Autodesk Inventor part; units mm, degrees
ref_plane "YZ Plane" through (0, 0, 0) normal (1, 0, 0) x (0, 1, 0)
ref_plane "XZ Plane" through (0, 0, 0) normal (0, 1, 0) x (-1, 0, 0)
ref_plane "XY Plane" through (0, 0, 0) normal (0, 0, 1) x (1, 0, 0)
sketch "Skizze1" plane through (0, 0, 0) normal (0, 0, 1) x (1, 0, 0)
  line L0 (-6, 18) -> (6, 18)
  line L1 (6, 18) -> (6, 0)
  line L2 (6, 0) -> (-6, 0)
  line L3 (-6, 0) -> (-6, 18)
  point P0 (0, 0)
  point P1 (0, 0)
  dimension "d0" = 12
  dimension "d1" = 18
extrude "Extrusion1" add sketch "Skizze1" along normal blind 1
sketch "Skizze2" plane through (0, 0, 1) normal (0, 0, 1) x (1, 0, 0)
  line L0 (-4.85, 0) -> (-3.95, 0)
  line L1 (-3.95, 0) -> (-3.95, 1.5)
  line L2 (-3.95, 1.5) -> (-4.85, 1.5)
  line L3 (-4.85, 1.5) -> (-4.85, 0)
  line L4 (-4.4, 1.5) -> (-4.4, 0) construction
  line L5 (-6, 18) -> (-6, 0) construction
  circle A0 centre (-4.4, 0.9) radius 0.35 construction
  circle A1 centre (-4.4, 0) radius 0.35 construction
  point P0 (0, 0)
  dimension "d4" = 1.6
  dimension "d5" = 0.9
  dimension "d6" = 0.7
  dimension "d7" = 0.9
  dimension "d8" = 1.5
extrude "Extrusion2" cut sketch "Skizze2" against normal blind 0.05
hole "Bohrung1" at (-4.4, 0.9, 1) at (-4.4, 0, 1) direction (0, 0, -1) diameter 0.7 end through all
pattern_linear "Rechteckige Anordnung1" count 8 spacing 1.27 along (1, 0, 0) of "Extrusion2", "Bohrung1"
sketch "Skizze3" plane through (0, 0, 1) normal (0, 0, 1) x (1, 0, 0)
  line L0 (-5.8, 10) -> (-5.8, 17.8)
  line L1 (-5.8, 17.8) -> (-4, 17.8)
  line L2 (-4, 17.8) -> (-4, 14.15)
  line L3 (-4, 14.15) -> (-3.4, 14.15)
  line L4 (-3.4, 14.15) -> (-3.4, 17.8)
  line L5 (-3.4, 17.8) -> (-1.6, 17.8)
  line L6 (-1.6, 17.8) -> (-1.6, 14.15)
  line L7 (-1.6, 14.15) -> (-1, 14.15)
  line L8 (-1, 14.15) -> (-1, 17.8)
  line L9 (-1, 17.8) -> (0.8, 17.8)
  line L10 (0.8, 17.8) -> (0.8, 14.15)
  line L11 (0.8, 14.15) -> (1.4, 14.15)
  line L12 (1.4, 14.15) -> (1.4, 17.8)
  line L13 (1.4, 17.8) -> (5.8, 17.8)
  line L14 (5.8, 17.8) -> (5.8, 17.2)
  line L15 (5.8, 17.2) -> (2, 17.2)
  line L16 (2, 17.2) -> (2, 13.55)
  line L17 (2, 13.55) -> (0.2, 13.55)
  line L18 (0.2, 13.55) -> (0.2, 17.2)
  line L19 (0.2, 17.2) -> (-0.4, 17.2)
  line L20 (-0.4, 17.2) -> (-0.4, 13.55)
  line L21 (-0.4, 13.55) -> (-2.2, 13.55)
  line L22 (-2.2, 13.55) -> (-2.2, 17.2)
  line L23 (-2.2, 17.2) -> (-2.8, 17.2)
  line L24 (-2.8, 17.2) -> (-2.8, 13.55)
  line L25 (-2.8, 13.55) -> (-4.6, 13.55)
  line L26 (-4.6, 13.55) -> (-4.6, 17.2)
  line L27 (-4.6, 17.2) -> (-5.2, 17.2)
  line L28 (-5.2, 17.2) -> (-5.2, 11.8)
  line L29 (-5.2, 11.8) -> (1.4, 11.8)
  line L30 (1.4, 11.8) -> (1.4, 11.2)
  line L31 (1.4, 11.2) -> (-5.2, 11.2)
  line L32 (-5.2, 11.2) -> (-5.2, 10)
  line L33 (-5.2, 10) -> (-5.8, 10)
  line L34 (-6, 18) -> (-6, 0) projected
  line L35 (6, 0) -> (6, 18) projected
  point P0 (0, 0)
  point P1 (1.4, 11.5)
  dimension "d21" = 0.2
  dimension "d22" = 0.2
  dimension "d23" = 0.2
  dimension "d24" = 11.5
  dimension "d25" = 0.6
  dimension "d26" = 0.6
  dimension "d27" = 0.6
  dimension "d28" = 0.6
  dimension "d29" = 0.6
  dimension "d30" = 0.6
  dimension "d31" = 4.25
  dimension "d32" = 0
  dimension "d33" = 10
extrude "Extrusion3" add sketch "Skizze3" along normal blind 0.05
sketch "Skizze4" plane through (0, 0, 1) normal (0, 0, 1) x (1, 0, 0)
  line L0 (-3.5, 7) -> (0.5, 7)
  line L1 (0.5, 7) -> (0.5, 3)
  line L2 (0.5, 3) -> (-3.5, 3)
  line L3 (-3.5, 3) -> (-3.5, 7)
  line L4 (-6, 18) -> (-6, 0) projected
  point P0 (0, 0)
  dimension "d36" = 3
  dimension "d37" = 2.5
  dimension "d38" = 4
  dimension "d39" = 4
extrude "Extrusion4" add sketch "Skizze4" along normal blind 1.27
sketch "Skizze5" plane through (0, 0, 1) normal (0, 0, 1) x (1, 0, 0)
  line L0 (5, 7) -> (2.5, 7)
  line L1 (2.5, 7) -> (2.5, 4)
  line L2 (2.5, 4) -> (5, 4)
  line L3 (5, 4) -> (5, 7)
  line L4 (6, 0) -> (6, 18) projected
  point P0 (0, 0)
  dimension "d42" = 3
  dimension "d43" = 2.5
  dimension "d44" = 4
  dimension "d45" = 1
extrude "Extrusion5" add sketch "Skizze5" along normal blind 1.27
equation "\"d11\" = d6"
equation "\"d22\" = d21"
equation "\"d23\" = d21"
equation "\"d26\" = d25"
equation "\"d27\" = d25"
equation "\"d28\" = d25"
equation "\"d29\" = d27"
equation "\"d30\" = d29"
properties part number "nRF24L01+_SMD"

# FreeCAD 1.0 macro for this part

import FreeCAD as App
import Part
import Sketcher
Q = App.Units.Quantity


def add_polygon(sketch, points):
    """Adds a closed chain of lines whose ends are joined by coincident constraints."""
    first, n = sketch.GeometryCount, len(points)
    for a, b in zip(points, points[1:] + points[:1]):
        sketch.addGeometry(Part.LineSegment(App.Vector(*a, 0), App.Vector(*b, 0)), False)
    for i in range(n):
        sketch.addConstraint(Sketcher.Constraint("Coincident", first + i, 2, first + (i + 1) % n, 1))

doc = App.newDocument("Part")
body = doc.addObject("PartDesign::Body", "Body")

sketch1 = body.newObject("Sketcher::SketchObject", "Sketch")
sketch1.AttachmentSupport = (doc.getObject("XY_Plane"), [""])
sketch1.MapMode = "FlatFace"
add_polygon(sketch1, [(6, 18), (-6, 18), (-6, 0), (6, 0)])
sketch1.addConstraint([
    Sketcher.Constraint("Horizontal", 0),
    Sketcher.Constraint("Vertical", 1),
    Sketcher.Constraint("Horizontal", 2),
    Sketcher.Constraint("Vertical", 3),
    Sketcher.Constraint("Symmetric", 1, 2, 2, 2, -1, 1),
    Sketcher.Constraint("DistanceX", 0, 2, 0, 1, Q("12 mm")),
    Sketcher.Constraint("DistanceY", 1, 2, 1, 1, Q("18 mm")),
])
pad1 = body.newObject("PartDesign::Pad", "Pad")
pad1.Profile = sketch1
pad1.Length = 1

sketch2 = body.newObject("Sketcher::SketchObject", "Sketch001")
sketch2.AttachmentSupport = (doc.getObject("XY_Plane"), [""])
sketch2.MapMode = "FlatFace"
sketch2.AttachmentOffset = App.Placement(App.Vector(0, 0, 1), App.Rotation())
add_polygon(sketch2, [(-4.8, 1.5), (-4.8, 0), (-4, 0), (-4, 1.5)])
sketch2.addConstraint([
    Sketcher.Constraint("Vertical", 0),
    Sketcher.Constraint("Horizontal", 1),
    Sketcher.Constraint("Vertical", 2),
    Sketcher.Constraint("Horizontal", 3),
    Sketcher.Constraint("PointOnObject", 0, 2, -1),
    Sketcher.Constraint("DistanceX", 1, 1, 1, 2, Q("0.9 mm")),
    Sketcher.Constraint("DistanceY", 0, 2, 0, 1, Q("1.5 mm")),
    Sketcher.Constraint("DistanceX", 0, 2, -1, 1, Q("4.85 mm")),
])
pocket1 = body.newObject("PartDesign::Pocket", "Pocket")
pocket1.Profile = sketch2
pocket1.Length = 0.05

sketch3 = body.newObject("Sketcher::SketchObject", "Sketch002")
sketch3.AttachmentSupport = (doc.getObject("XY_Plane"), [""])
sketch3.MapMode = "FlatFace"
sketch3.AttachmentOffset = App.Placement(App.Vector(0, 0, 1), App.Rotation())
sketch3.addGeometry([
    Part.Circle(App.Vector(-4.4, 0.9, 0), App.Vector(0, 0, 1), 0.35),
    Part.Circle(App.Vector(-4.4, 0, 0), App.Vector(0, 0, 1), 0.35),
], False)
sketch3.addConstraint([
    Sketcher.Constraint("Equal", 0, 1),
    Sketcher.Constraint("PointOnObject", 1, 3, -1),
    Sketcher.Constraint("Vertical", 0, 3, 1, 3),
    Sketcher.Constraint("Diameter", 0, Q("0.7 mm")),
    Sketcher.Constraint("DistanceX", 0, 3, -1, 1, Q("4.4 mm")),
    Sketcher.Constraint("DistanceY", -1, 1, 0, 3, Q("0.9 mm")),
])
doc.recompute()
hole = body.newObject("PartDesign::Hole", "Hole")
hole.Profile = sketch3
hole.ThreadType = "None"
hole.Diameter = 0.7
hole.DepthType = "ThroughAll"
doc.recompute()

linearpattern = body.newObject("PartDesign::LinearPattern", "LinearPattern")
linearpattern.Originals = [pocket1, hole]
linearpattern.Direction = (doc.getObject("X_Axis"), [""])
linearpattern.Mode = "offset"
linearpattern.Offset = 1.27
linearpattern.Occurrences = 8
body.Tip = linearpattern

sketch4 = body.newObject("Sketcher::SketchObject", "Sketch003")
sketch4.AttachmentSupport = (doc.getObject("XY_Plane"), [""])
sketch4.MapMode = "FlatFace"
sketch4.AttachmentOffset = App.Placement(App.Vector(0, 0, 1), App.Rotation())
add_polygon(sketch4, [(-5.8, 17.8), (-5.8, 10), (-5.2, 10), (-5.2, 11.2), (1.4, 11.2), (1.4, 11.8), (-5.2, 11.8), (-5.2, 17.2), (-4.6, 17.2), (-4.6, 13.6), (-2.8, 13.6), (-2.8, 17.2), (-2.2, 17.2), (-2.2, 13.6), (-0.4, 13.6), (-0.4, 17.2), (0.2, 17.2), (0.2, 13.6), (2, 13.6), (2, 17.2), (5.8, 17.2), (5.8, 17.8), (1.4, 17.8), (1.4, 14.2), (0.8, 14.2), (0.8, 17.8), (-1, 17.8), (-1, 14.2), (-1.6, 14.2), (-1.6, 17.8), (-3.4, 17.8), (-3.4, 14.2), (-4, 14.2), (-4, 17.8)])
sketch4.addConstraint([
    Sketcher.Constraint("Vertical", 0),
    Sketcher.Constraint("Horizontal", 1),
    Sketcher.Constraint("Vertical", 2),
    Sketcher.Constraint("Horizontal", 3),
    Sketcher.Constraint("Vertical", 4),
    Sketcher.Constraint("Horizontal", 5),
    Sketcher.Constraint("Vertical", 6),
    Sketcher.Constraint("Horizontal", 7),
    Sketcher.Constraint("Vertical", 8),
    Sketcher.Constraint("Horizontal", 9),
    Sketcher.Constraint("Vertical", 10),
    Sketcher.Constraint("Horizontal", 11),
    Sketcher.Constraint("Vertical", 12),
    Sketcher.Constraint("Horizontal", 13),
    Sketcher.Constraint("Vertical", 14),
    Sketcher.Constraint("Horizontal", 15),
    Sketcher.Constraint("Vertical", 16),
    Sketcher.Constraint("Horizontal", 17),
    Sketcher.Constraint("Vertical", 18),
    Sketcher.Constraint("Horizontal", 19),
    Sketcher.Constraint("Vertical", 20),
    Sketcher.Constraint("Horizontal", 21),
    Sketcher.Constraint("Vertical", 22),
    Sketcher.Constraint("Horizontal", 23),
    Sketcher.Constraint("Vertical", 24),
    Sketcher.Constraint("Horizontal", 25),
    Sketcher.Constraint("Vertical", 26),
    Sketcher.Constraint("Horizontal", 27),
    Sketcher.Constraint("Vertical", 28),
    Sketcher.Constraint("Horizontal", 29),
    Sketcher.Constraint("Vertical", 30),
    Sketcher.Constraint("Horizontal", 31),
    Sketcher.Constraint("Vertical", 32),
    Sketcher.Constraint("Horizontal", 33),
    Sketcher.Constraint("Symmetric", 20, 2, 33, 2, -2),
    Sketcher.Constraint("Horizontal", 7, 2, 10, 2),
    Sketcher.Constraint("Horizontal", 9, 2, 12, 2),
    Sketcher.Constraint("Horizontal", 11, 2, 14, 2),
    Sketcher.Constraint("Horizontal", 13, 2, 16, 2),
    Sketcher.Constraint("Horizontal", 15, 2, 18, 2),
    Sketcher.Constraint("Horizontal", 21, 2, 24, 2),
    Sketcher.Constraint("Horizontal", 23, 2, 26, 2),
    Sketcher.Constraint("Horizontal", 25, 2, 28, 2),
    Sketcher.Constraint("Horizontal", 27, 2, 30, 2),
    Sketcher.Constraint("Vertical", 2, 2, 5, 2),
    Sketcher.Constraint("Vertical", 4, 2, 21, 2),
    Sketcher.Constraint("Equal", 1, 7),
    Sketcher.Constraint("Equal", 7, 11),
    Sketcher.Constraint("Equal", 9, 13),
    Sketcher.Constraint("Equal", 11, 15),
    Sketcher.Constraint("Equal", 13, 17),
    Sketcher.Constraint("Equal", 15, 23),
    Sketcher.Constraint("Equal", 17, 25),
    Sketcher.Constraint("Equal", 23, 27),
    Sketcher.Constraint("Equal", 25, 29),
    Sketcher.Constraint("Equal", 27, 31),
    Sketcher.Constraint("Equal", 29, 33),
    Sketcher.Constraint("Equal", 31, 4),
    Sketcher.Constraint("Equal", 4, 20),
    Sketcher.Constraint("Equal", 18, 22),
    Sketcher.Constraint("DistanceX", 1, 1, 1, 2, Q("0.6 mm")),
    Sketcher.Constraint("DistanceY", -1, 1, 0, 2, Q("10 mm")),
    Sketcher.Constraint("DistanceX", -1, 1, 15, 2, Q("0.2 mm")),
    Sketcher.Constraint("DistanceX", 16, 2, 23, 2, Q("0.6 mm")),
    Sketcher.Constraint("DistanceY", 17, 2, 20, 2, Q("4.25 mm")),
    Sketcher.Constraint("DistanceY", 0, 2, 0, 1, Q("7.8 mm")),
    Sketcher.Constraint("DistanceY", 2, 1, 2, 2, Q("1.2 mm")),
])
pad2 = body.newObject("PartDesign::Pad", "Pad001")
pad2.Profile = sketch4
pad2.Length = 0.05

sketch5 = body.newObject("Sketcher::SketchObject", "Sketch004")
sketch5.AttachmentSupport = (doc.getObject("XY_Plane"), [""])
sketch5.MapMode = "FlatFace"
sketch5.AttachmentOffset = App.Placement(App.Vector(0, 0, 1), App.Rotation())
add_polygon(sketch5, [(0.5, 7), (-3.5, 7), (-3.5, 3), (0.5, 3)])
sketch5.addConstraint([
    Sketcher.Constraint("Horizontal", 0),
    Sketcher.Constraint("Vertical", 1),
    Sketcher.Constraint("Horizontal", 2),
    Sketcher.Constraint("Vertical", 3),
    Sketcher.Constraint("Equal", 2, 1),
    Sketcher.Constraint("DistanceX", 0, 2, 0, 1, Q("4 mm")),
    Sketcher.Constraint("DistanceY", -1, 1, 1, 2, Q("3 mm")),
    Sketcher.Constraint("DistanceX", 0, 2, -1, 1, Q("3.5 mm")),
])
pad3 = body.newObject("PartDesign::Pad", "Pad002")
pad3.Profile = sketch5
pad3.Length = 1.27

sketch6 = body.newObject("Sketcher::SketchObject", "Sketch005")
sketch6.AttachmentSupport = (doc.getObject("XY_Plane"), [""])
sketch6.MapMode = "FlatFace"
sketch6.AttachmentOffset = App.Placement(App.Vector(0, 0, 1), App.Rotation())
add_polygon(sketch6, [(5, 4), (5, 7), (2.5, 7), (2.5, 4)])
sketch6.addConstraint([
    Sketcher.Constraint("Vertical", 0),
    Sketcher.Constraint("Horizontal", 1),
    Sketcher.Constraint("Vertical", 2),
    Sketcher.Constraint("Horizontal", 3),
    Sketcher.Constraint("DistanceY", 0, 1, 0, 2, Q("3 mm")),
    Sketcher.Constraint("DistanceX", 1, 2, 1, 1, Q("2.5 mm")),
    Sketcher.Constraint("DistanceY", -1, 1, 2, 2, Q("4 mm")),
    Sketcher.Constraint("DistanceX", -1, 1, 1, 2, Q("2.5 mm")),
])
pad4 = body.newObject("PartDesign::Pad", "Pad003")
pad4.Profile = sketch6
pad4.Length = 1.27

doc.recompute()
